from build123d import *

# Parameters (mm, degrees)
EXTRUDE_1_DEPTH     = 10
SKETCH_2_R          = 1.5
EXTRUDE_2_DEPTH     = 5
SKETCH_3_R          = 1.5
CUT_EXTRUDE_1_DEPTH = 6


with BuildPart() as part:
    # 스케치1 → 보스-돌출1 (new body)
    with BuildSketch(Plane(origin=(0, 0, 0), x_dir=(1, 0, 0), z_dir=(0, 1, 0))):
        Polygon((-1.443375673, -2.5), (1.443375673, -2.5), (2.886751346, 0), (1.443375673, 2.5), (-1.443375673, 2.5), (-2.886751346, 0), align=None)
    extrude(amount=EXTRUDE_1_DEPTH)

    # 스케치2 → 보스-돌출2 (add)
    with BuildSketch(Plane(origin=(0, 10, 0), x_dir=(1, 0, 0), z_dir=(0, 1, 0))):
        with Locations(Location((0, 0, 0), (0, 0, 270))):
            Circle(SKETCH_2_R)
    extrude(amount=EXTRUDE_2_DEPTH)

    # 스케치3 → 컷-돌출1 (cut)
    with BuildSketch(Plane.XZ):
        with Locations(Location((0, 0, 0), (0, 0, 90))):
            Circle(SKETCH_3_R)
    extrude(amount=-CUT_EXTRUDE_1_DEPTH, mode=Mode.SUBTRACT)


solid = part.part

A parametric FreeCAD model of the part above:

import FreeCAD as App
import Part
import Sketcher
Q = App.Units.Quantity

doc = App.newDocument("Part")
body = doc.addObject("PartDesign::Body", "Body")

sketch1 = doc.addObject("Sketcher::SketchObject", "Sketch")
body.addObject(sketch1)
sketch1.AttachmentSupport = (doc.XZ_Plane, [""])
sketch1.MapMode = "FlatFace"
sketch1.addGeometry([
    Part.LineSegment(App.Vector(-1.4, 2.5, 0), App.Vector(1.4, 2.5, 0)),
    Part.LineSegment(App.Vector(1.4, 2.5, 0), App.Vector(2.9, 0, 0)),
    Part.LineSegment(App.Vector(2.9, 0, 0), App.Vector(1.4, -2.5, 0)),
    Part.LineSegment(App.Vector(1.4, -2.5, 0), App.Vector(-1.4, -2.5, 0)),
    Part.LineSegment(App.Vector(-1.4, -2.5, 0), App.Vector(-2.9, 0, 0)),
    Part.LineSegment(App.Vector(-2.9, 0, 0), App.Vector(-1.4, 2.5, 0)),
], False)
sketch1.addConstraint([
    Sketcher.Constraint("Coincident", 0, 2, 1, 1),
    Sketcher.Constraint("Coincident", 1, 2, 2, 1),
    Sketcher.Constraint("Coincident", 2, 2, 3, 1),
    Sketcher.Constraint("Coincident", 3, 2, 4, 1),
    Sketcher.Constraint("Coincident", 4, 2, 5, 1),
    Sketcher.Constraint("Coincident", 5, 2, 0, 1),
    Sketcher.Constraint("Horizontal", 0),
    Sketcher.Constraint("Horizontal", 3),
    Sketcher.Constraint("Symmetric", 0, 2, 3, 2, -1, 1),
    Sketcher.Constraint("Symmetric", 1, 2, 4, 2, -1, 1),
    Sketcher.Constraint("PointOnObject", 1, 2, -1),
    Sketcher.Constraint("Parallel", 2, 5),
    Sketcher.Constraint("Vertical", 0, 2, 2, 2),
    Sketcher.Constraint("Angle", 1, Q("-60 deg")),
    Sketcher.Constraint("DistanceY", 2, 2, 0, 2, Q("5 mm")),
    Sketcher.Constraint("DistanceX", 0, 1, 0, 2, Q("2.886751 mm")),
])
pad1 = doc.addObject("PartDesign::Pad", "Pad")
body.addObject(pad1)
pad1.Profile = sketch1
pad1.Length = 10
pad1.Reversed = True

sketch2 = doc.addObject("Sketcher::SketchObject", "Sketch001")
body.addObject(sketch2)
sketch2.AttachmentSupport = (doc.XZ_Plane, [""])
sketch2.MapMode = "FlatFace"
sketch2.AttachmentOffset = App.Placement(App.Vector(0, 0, -10), App.Rotation())
sketch2.addGeometry(Part.Circle(App.Vector(0, 0, 0), App.Vector(0, 0, 1), 1.5), False)
sketch2.addConstraint([
    Sketcher.Constraint("Coincident", 0, 3, -1, 1),
    Sketcher.Constraint("Diameter", 0, Q("3 mm")),
])
pad2 = doc.addObject("PartDesign::Pad", "Pad001")
body.addObject(pad2)
pad2.Profile = sketch2
pad2.Length = 5
pad2.Reversed = True

sketch3 = doc.addObject("Sketcher::SketchObject", "Sketch002")
body.addObject(sketch3)
sketch3.AttachmentSupport = (doc.XZ_Plane, [""])
sketch3.MapMode = "FlatFace"
sketch3.addGeometry(Part.Circle(App.Vector(0, 0, 0), App.Vector(0, 0, 1), 1.5), False)
sketch3.addConstraint([
    Sketcher.Constraint("Coincident", 0, 3, -1, 1),
    Sketcher.Constraint("Diameter", 0, Q("3 mm")),
])
pocket1 = doc.addObject("PartDesign::Pocket", "Pocket")
body.addObject(pocket1)
pocket1.Profile = sketch3
pocket1.Length = 6

doc.recompute()
